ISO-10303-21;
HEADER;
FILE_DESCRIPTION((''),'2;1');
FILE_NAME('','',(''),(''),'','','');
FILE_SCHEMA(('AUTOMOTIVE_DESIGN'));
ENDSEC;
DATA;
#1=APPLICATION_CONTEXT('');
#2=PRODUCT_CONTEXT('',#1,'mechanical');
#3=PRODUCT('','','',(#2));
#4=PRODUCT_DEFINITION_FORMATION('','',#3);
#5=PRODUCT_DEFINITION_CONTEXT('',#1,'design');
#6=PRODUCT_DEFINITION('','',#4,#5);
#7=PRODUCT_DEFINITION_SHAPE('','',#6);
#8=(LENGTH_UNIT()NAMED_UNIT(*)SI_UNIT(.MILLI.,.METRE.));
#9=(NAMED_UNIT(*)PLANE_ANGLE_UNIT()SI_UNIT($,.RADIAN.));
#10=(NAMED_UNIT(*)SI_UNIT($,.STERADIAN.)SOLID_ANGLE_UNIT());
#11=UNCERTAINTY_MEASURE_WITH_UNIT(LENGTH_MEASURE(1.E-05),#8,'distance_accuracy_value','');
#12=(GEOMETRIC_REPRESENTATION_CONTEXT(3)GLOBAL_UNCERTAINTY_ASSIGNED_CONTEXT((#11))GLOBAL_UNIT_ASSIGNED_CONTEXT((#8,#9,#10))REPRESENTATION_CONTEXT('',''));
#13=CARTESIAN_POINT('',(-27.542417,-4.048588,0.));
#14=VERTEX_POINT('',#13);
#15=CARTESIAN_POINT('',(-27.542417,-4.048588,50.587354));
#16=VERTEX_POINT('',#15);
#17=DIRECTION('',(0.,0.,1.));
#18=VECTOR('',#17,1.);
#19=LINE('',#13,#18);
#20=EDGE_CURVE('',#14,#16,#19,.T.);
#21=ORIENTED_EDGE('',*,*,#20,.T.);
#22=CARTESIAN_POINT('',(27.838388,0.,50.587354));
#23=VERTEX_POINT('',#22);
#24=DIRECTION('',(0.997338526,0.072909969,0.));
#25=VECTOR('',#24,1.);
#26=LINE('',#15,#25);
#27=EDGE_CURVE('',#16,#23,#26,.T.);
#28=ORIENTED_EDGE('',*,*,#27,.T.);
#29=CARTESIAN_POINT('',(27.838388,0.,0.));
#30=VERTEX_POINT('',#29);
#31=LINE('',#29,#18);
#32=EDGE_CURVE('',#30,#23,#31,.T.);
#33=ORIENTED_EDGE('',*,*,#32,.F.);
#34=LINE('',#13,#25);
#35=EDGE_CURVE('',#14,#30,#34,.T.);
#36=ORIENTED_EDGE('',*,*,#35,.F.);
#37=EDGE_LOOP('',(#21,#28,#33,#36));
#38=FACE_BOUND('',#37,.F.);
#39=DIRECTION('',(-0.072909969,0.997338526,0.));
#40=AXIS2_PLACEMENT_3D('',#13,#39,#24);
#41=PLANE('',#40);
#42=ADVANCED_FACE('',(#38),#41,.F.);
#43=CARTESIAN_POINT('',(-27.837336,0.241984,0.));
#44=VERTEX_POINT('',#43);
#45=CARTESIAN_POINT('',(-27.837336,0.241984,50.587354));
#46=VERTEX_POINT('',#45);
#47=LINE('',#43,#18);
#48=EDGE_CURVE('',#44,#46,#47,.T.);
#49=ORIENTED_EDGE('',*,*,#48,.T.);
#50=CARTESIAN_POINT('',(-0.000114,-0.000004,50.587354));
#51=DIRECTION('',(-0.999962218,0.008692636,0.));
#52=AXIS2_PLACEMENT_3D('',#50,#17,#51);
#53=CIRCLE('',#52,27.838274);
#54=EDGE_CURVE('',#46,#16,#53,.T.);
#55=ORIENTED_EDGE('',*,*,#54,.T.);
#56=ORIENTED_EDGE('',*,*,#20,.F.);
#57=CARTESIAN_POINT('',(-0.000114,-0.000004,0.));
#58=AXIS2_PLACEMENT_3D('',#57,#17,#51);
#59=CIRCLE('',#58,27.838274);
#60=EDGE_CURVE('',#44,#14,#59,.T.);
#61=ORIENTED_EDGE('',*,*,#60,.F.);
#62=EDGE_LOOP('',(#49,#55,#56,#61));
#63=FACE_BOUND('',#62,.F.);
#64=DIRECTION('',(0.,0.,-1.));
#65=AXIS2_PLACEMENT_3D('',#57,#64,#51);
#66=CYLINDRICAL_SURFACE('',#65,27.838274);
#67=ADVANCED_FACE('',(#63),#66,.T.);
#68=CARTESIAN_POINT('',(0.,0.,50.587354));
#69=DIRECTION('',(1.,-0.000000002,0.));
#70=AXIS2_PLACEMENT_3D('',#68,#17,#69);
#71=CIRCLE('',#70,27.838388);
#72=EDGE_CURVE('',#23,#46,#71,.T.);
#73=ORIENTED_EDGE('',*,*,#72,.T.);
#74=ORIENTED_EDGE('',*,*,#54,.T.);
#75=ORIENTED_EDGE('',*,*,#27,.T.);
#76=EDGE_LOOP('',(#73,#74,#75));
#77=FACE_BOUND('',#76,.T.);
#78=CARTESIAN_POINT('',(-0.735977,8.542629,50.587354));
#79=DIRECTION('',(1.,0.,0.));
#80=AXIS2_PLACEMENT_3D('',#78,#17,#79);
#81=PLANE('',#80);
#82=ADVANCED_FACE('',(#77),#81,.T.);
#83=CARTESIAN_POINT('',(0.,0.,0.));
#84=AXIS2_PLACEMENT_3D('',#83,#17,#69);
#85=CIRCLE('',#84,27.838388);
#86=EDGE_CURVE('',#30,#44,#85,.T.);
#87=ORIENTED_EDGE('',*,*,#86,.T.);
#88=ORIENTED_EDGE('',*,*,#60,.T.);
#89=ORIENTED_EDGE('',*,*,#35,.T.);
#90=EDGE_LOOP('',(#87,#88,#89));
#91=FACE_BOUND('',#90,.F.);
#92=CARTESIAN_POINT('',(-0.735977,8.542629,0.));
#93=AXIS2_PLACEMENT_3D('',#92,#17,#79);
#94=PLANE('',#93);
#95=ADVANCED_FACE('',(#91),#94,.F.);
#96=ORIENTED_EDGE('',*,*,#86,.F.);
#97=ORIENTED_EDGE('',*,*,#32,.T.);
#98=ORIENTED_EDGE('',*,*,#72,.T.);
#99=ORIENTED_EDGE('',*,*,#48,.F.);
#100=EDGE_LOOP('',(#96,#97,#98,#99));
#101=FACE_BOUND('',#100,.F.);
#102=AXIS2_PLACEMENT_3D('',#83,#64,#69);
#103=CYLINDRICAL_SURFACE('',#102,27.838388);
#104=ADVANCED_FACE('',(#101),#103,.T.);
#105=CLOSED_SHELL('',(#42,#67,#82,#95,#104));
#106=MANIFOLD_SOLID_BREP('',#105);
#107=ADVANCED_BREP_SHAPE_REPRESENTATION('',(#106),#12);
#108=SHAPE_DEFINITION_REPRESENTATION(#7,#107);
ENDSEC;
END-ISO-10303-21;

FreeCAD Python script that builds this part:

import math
import FreeCAD as App
import Part
import Sketcher
from FreeCAD import Vector

doc = App.newDocument("Part")
body = doc.addObject("PartDesign::Body", "Body")

sketch1 = body.newObject("Sketcher::SketchObject", "Sketch")
sketch1.AttachmentSupport = (doc.getObject("XY_Plane"), [""])
sketch1.MapMode = "FlatFace"
sketch1.addGeometry(Part.LineSegment(Vector(-27.5, -4, 0), Vector(27.8, 0, 0)), False)
sketch1.addGeometry(Part.ArcOfCircle(Part.Circle(Vector(0, 0, 0), Vector(0, 0, 1), 27.8), math.radians(0), math.radians(180)), False)
sketch1.addGeometry(Part.ArcOfCircle(Part.Circle(Vector(0, 0, 0), Vector(0, 0, 1), 27.8), math.radians(179.5), math.radians(188.36)), False)
sketch1.addConstraint(Sketcher.Constraint("Coincident", 0, 2, 1, 1))
sketch1.addConstraint(Sketcher.Constraint("Tangent", 1, 2, 2, 1))
sketch1.addConstraint(Sketcher.Constraint("Coincident", 2, 2, 0, 1))
sketch1.addConstraint(Sketcher.Constraint("Coincident", 1, 3, -1, 1))
sketch1.addConstraint(Sketcher.Constraint("PointOnObject", 0, 2, -1))
sketch1.addConstraint(Sketcher.Constraint("Radius", 1, 27.838388))
sketch1.addConstraint(Sketcher.Constraint("Radius", 2, 27.838274))
sketch1.addConstraint(Sketcher.Constraint("DistanceX", 1, 2, 2, 2, 0.294919))
sketch1.addConstraint(Sketcher.Constraint("DistanceY", 2, 2, 1, 2, 4.290572))
pad1 = body.newObject("PartDesign::Pad", "Pad")
pad1.Profile = sketch1
pad1.Length = 50.587354

doc.recompute()
